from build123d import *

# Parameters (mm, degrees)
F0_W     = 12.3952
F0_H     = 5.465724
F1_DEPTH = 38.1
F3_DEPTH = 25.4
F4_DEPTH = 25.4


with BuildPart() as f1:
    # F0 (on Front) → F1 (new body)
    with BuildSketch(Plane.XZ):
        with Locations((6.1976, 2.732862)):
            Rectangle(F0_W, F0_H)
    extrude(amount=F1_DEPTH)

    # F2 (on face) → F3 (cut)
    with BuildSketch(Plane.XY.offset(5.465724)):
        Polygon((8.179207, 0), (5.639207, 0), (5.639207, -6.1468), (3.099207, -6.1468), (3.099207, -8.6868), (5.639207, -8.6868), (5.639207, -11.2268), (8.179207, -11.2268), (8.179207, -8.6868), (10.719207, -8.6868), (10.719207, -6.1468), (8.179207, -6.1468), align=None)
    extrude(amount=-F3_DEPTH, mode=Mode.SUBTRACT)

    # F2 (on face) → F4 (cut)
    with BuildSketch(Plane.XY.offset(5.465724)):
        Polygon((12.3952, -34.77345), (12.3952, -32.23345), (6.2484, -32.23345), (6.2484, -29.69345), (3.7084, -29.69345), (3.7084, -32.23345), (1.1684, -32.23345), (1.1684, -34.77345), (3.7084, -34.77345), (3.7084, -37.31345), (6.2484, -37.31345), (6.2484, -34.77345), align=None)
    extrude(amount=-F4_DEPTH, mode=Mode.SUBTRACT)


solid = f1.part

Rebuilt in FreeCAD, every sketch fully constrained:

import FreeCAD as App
import Part
import Sketcher

V = App.Vector
Q = App.Units.Quantity

doc = App.newDocument("Part")
params = doc.addObject("Spreadsheet::Sheet", "Params")
for row, (alias, value) in enumerate([
    ("sketch1_width", "0.488 in"),
    ("pad1_length", "1.5 in"),
    ("sketch2_width", "0.1 in"),
    ("sketch2_height", "0.242 in"),
    ("pocket1_length", "1 in"),
    ("sketch3_width", "0.1 in"),
    ("sketch3_width2", "0.242 in"),
    ("pocket2_length", "1 in"),
], start=1):
    params.set(f"A{row}", alias)
    params.set(f"B{row}", "=" + value)
    params.setAlias(f"B{row}", alias)

body = doc.addObject("PartDesign::Body", "Body")

# Sketch on XZ plane
sketch1 = body.newObject("Sketcher::SketchObject", "Sketch")
sketch1.AttachmentSupport = (doc.getObject("XZ_Plane"), [""])
sketch1.MapMode = "FlatFace"
sketch1.addGeometry([
    Part.LineSegment(V(0, 5, 0), V(0, 0, 0)),
    Part.LineSegment(V(0, 0, 0), V(12, 0, 0)),
    Part.LineSegment(V(12, 0, 0), V(12, 5, 0)),
    Part.LineSegment(V(12, 5, 0), V(0, 5, 0)),
], False)
sketch1.addConstraint([
    Sketcher.Constraint("Coincident", 0, 2, 1, 1),
    Sketcher.Constraint("Coincident", 1, 2, 2, 1),
    Sketcher.Constraint("Coincident", 2, 2, 3, 1),
    Sketcher.Constraint("Coincident", 3, 2, 0, 1),
    Sketcher.Constraint("Vertical", 0),
    Sketcher.Constraint("Horizontal", 1),
    Sketcher.Constraint("Vertical", 2),
    Sketcher.Constraint("Horizontal", 3),
    Sketcher.Constraint("Coincident", 0, 2, -1, 1),
    Sketcher.Constraint("DistanceX", 1, 1, 1, 2, Q("0.488 in")),
    Sketcher.Constraint("DistanceY", 0, 2, 0, 1, 5.465724),
])
sketch1.setExpression("Constraints[9]", "Params.sketch1_width")
pad1 = body.newObject("PartDesign::Pad", "Pad")
pad1.Profile = sketch1
pad1.setExpression("Length", "Params.pad1_length")

# Sketch on XY plane
sketch2 = body.newObject("Sketcher::SketchObject", "Sketch001")
sketch2.AttachmentSupport = (doc.getObject("XY_Plane"), [""])
sketch2.MapMode = "FlatFace"
sketch2.AttachmentOffset = App.Placement(V(0, 0, 5.465724), App.Rotation())
sketch2.addGeometry([
    Part.LineSegment(V(8.2, 0, 0), V(5.6, 0, 0)),  # 0
    Part.LineSegment(V(5.6, 0, 0), V(5.6, -6.1, 0)),  # 1
    Part.LineSegment(V(5.6, -6.1, 0), V(3.1, -6.1, 0)),  # 2
    Part.LineSegment(V(3.1, -6.1, 0), V(3.1, -8.7, 0)),  # 3
    Part.LineSegment(V(3.1, -8.7, 0), V(5.6, -8.7, 0)),  # 4
    Part.LineSegment(V(5.6, -8.7, 0), V(5.6, -11.2, 0)),  # 5
    Part.LineSegment(V(5.6, -11.2, 0), V(8.2, -11.2, 0)),  # 6
    Part.LineSegment(V(8.2, -11.2, 0), V(8.2, -8.7, 0)),  # 7
    Part.LineSegment(V(8.2, -8.7, 0), V(10.7, -8.7, 0)),  # 8
    Part.LineSegment(V(10.7, -8.7, 0), V(10.7, -6.1, 0)),  # 9
    Part.LineSegment(V(10.7, -6.1, 0), V(8.2, -6.1, 0)),  # 10
    Part.LineSegment(V(8.2, -6.1, 0), V(8.2, 0, 0)),  # 11
], False)
sketch2.addConstraint([
    Sketcher.Constraint("Coincident", 0, 2, 1, 1),
    Sketcher.Constraint("Coincident", 1, 2, 2, 1),
    Sketcher.Constraint("Coincident", 2, 2, 3, 1),
    Sketcher.Constraint("Coincident", 3, 2, 4, 1),
    Sketcher.Constraint("Coincident", 4, 2, 5, 1),
    Sketcher.Constraint("Coincident", 5, 2, 6, 1),
    Sketcher.Constraint("Coincident", 6, 2, 7, 1),
    Sketcher.Constraint("Coincident", 7, 2, 8, 1),
    Sketcher.Constraint("Coincident", 8, 2, 9, 1),
    Sketcher.Constraint("Coincident", 9, 2, 10, 1),
    Sketcher.Constraint("Coincident", 10, 2, 11, 1),
    Sketcher.Constraint("Coincident", 11, 2, 0, 1),
    Sketcher.Constraint("Horizontal", 0),
    Sketcher.Constraint("Vertical", 1),
    Sketcher.Constraint("Horizontal", 2),
    Sketcher.Constraint("Vertical", 3),
    Sketcher.Constraint("Horizontal", 4),
    Sketcher.Constraint("Vertical", 5),
    Sketcher.Constraint("Horizontal", 6),
    Sketcher.Constraint("Vertical", 7),
    Sketcher.Constraint("Horizontal", 8),
    Sketcher.Constraint("Vertical", 9),
    Sketcher.Constraint("Horizontal", 10),
    Sketcher.Constraint("Vertical", 11),
    Sketcher.Constraint("PointOnObject", 0, 2, -1),
    Sketcher.Constraint("Horizontal", 4, 2, 7, 2),
    Sketcher.Constraint("Horizontal", 2, 2, 9, 2),
    Sketcher.Constraint("Vertical", 1, 2, 4, 2),
    Sketcher.Constraint("Vertical", 7, 2, 10, 2),
    Sketcher.Constraint("Equal", 0, 2),
    Sketcher.Constraint("Equal", 6, 8),
    Sketcher.Constraint("Equal", 10, 3),
    Sketcher.Constraint("Equal", 3, 5),
    Sketcher.Constraint("DistanceX", 0, 2, 0, 1, Q("0.1 in")),
    Sketcher.Constraint("DistanceY", 1, 2, 1, 1, Q("0.242 in")),
    Sketcher.Constraint("DistanceX", -1, 1, 0, 2, 5.639207),
])
sketch2.setExpression("Constraints[33]", "Params.sketch2_width")
sketch2.setExpression("Constraints[34]", "Params.sketch2_height")
pocket1 = body.newObject("PartDesign::Pocket", "Pocket")
pocket1.Profile = sketch2
pocket1.setExpression("Length", "Params.pocket1_length")

# Sketch on XY plane
sketch3 = body.newObject("Sketcher::SketchObject", "Sketch002")
sketch3.AttachmentSupport = (doc.getObject("XY_Plane"), [""])
sketch3.MapMode = "FlatFace"
sketch3.AttachmentOffset = App.Placement(V(0, 0, 5.465724), App.Rotation())
sketch3.addGeometry([
    Part.LineSegment(V(12.4, -34.8, 0), V(12.4, -32.2, 0)),  # 0
    Part.LineSegment(V(12.4, -32.2, 0), V(6.2, -32.2, 0)),  # 1
    Part.LineSegment(V(6.2, -32.2, 0), V(6.2, -29.7, 0)),  # 2
    Part.LineSegment(V(6.2, -29.7, 0), V(3.7, -29.7, 0)),  # 3
    Part.LineSegment(V(3.7, -29.7, 0), V(3.7, -32.2, 0)),  # 4
    Part.LineSegment(V(3.7, -32.2, 0), V(1.2, -32.2, 0)),  # 5
    Part.LineSegment(V(1.2, -32.2, 0), V(1.2, -34.8, 0)),  # 6
    Part.LineSegment(V(1.2, -34.8, 0), V(3.7, -34.8, 0)),  # 7
    Part.LineSegment(V(3.7, -34.8, 0), V(3.7, -37.3, 0)),  # 8
    Part.LineSegment(V(3.7, -37.3, 0), V(6.2, -37.3, 0)),  # 9
    Part.LineSegment(V(6.2, -37.3, 0), V(6.2, -34.8, 0)),  # 10
    Part.LineSegment(V(6.2, -34.8, 0), V(12.4, -34.8, 0)),  # 11
], False)
sketch3.addConstraint([
    Sketcher.Constraint("Coincident", 0, 2, 1, 1),
    Sketcher.Constraint("Coincident", 1, 2, 2, 1),
    Sketcher.Constraint("Coincident", 2, 2, 3, 1),
    Sketcher.Constraint("Coincident", 3, 2, 4, 1),
    Sketcher.Constraint("Coincident", 4, 2, 5, 1),
    Sketcher.Constraint("Coincident", 5, 2, 6, 1),
    Sketcher.Constraint("Coincident", 6, 2, 7, 1),
    Sketcher.Constraint("Coincident", 7, 2, 8, 1),
    Sketcher.Constraint("Coincident", 8, 2, 9, 1),
    Sketcher.Constraint("Coincident", 9, 2, 10, 1),
    Sketcher.Constraint("Coincident", 10, 2, 11, 1),
    Sketcher.Constraint("Coincident", 11, 2, 0, 1),
    Sketcher.Constraint("Vertical", 0),
    Sketcher.Constraint("Horizontal", 1),
    Sketcher.Constraint("Vertical", 2),
    Sketcher.Constraint("Horizontal", 3),
    Sketcher.Constraint("Vertical", 4),
    Sketcher.Constraint("Horizontal", 5),
    Sketcher.Constraint("Vertical", 6),
    Sketcher.Constraint("Horizontal", 7),
    Sketcher.Constraint("Vertical", 8),
    Sketcher.Constraint("Horizontal", 9),
    Sketcher.Constraint("Vertical", 10),
    Sketcher.Constraint("Horizontal", 11),
    Sketcher.Constraint("Horizontal", 1, 2, 4, 2),
    Sketcher.Constraint("Horizontal", 7, 2, 10, 2),
    Sketcher.Constraint("Vertical", 4, 2, 7, 2),
    Sketcher.Constraint("Vertical", 2, 2, 9, 2),
    Sketcher.Constraint("Equal", 3, 5),
    Sketcher.Constraint("Equal", 9, 0),
    Sketcher.Constraint("Equal", 0, 2),
    Sketcher.Constraint("Equal", 6, 8),
    Sketcher.Constraint("DistanceX", 3, 2, 3, 1, Q("0.1 in")),
    Sketcher.Constraint("DistanceX", 1, 2, 1, 1, Q("0.242 in")),
    Sketcher.Constraint("DistanceX", -1, 1, 0, 2, Q("0.488 in")),
    Sketcher.Constraint("DistanceY", 0, 2, -1, 1, 32.23345),
])
sketch3.setExpression("Constraints[32]", "Params.sketch3_width")
sketch3.setExpression("Constraints[33]", "Params.sketch3_width2")
pocket2 = body.newObject("PartDesign::Pocket", "Pocket001")
pocket2.Profile = sketch3
pocket2.setExpression("Length", "Params.pocket2_length")

doc.recompute()
